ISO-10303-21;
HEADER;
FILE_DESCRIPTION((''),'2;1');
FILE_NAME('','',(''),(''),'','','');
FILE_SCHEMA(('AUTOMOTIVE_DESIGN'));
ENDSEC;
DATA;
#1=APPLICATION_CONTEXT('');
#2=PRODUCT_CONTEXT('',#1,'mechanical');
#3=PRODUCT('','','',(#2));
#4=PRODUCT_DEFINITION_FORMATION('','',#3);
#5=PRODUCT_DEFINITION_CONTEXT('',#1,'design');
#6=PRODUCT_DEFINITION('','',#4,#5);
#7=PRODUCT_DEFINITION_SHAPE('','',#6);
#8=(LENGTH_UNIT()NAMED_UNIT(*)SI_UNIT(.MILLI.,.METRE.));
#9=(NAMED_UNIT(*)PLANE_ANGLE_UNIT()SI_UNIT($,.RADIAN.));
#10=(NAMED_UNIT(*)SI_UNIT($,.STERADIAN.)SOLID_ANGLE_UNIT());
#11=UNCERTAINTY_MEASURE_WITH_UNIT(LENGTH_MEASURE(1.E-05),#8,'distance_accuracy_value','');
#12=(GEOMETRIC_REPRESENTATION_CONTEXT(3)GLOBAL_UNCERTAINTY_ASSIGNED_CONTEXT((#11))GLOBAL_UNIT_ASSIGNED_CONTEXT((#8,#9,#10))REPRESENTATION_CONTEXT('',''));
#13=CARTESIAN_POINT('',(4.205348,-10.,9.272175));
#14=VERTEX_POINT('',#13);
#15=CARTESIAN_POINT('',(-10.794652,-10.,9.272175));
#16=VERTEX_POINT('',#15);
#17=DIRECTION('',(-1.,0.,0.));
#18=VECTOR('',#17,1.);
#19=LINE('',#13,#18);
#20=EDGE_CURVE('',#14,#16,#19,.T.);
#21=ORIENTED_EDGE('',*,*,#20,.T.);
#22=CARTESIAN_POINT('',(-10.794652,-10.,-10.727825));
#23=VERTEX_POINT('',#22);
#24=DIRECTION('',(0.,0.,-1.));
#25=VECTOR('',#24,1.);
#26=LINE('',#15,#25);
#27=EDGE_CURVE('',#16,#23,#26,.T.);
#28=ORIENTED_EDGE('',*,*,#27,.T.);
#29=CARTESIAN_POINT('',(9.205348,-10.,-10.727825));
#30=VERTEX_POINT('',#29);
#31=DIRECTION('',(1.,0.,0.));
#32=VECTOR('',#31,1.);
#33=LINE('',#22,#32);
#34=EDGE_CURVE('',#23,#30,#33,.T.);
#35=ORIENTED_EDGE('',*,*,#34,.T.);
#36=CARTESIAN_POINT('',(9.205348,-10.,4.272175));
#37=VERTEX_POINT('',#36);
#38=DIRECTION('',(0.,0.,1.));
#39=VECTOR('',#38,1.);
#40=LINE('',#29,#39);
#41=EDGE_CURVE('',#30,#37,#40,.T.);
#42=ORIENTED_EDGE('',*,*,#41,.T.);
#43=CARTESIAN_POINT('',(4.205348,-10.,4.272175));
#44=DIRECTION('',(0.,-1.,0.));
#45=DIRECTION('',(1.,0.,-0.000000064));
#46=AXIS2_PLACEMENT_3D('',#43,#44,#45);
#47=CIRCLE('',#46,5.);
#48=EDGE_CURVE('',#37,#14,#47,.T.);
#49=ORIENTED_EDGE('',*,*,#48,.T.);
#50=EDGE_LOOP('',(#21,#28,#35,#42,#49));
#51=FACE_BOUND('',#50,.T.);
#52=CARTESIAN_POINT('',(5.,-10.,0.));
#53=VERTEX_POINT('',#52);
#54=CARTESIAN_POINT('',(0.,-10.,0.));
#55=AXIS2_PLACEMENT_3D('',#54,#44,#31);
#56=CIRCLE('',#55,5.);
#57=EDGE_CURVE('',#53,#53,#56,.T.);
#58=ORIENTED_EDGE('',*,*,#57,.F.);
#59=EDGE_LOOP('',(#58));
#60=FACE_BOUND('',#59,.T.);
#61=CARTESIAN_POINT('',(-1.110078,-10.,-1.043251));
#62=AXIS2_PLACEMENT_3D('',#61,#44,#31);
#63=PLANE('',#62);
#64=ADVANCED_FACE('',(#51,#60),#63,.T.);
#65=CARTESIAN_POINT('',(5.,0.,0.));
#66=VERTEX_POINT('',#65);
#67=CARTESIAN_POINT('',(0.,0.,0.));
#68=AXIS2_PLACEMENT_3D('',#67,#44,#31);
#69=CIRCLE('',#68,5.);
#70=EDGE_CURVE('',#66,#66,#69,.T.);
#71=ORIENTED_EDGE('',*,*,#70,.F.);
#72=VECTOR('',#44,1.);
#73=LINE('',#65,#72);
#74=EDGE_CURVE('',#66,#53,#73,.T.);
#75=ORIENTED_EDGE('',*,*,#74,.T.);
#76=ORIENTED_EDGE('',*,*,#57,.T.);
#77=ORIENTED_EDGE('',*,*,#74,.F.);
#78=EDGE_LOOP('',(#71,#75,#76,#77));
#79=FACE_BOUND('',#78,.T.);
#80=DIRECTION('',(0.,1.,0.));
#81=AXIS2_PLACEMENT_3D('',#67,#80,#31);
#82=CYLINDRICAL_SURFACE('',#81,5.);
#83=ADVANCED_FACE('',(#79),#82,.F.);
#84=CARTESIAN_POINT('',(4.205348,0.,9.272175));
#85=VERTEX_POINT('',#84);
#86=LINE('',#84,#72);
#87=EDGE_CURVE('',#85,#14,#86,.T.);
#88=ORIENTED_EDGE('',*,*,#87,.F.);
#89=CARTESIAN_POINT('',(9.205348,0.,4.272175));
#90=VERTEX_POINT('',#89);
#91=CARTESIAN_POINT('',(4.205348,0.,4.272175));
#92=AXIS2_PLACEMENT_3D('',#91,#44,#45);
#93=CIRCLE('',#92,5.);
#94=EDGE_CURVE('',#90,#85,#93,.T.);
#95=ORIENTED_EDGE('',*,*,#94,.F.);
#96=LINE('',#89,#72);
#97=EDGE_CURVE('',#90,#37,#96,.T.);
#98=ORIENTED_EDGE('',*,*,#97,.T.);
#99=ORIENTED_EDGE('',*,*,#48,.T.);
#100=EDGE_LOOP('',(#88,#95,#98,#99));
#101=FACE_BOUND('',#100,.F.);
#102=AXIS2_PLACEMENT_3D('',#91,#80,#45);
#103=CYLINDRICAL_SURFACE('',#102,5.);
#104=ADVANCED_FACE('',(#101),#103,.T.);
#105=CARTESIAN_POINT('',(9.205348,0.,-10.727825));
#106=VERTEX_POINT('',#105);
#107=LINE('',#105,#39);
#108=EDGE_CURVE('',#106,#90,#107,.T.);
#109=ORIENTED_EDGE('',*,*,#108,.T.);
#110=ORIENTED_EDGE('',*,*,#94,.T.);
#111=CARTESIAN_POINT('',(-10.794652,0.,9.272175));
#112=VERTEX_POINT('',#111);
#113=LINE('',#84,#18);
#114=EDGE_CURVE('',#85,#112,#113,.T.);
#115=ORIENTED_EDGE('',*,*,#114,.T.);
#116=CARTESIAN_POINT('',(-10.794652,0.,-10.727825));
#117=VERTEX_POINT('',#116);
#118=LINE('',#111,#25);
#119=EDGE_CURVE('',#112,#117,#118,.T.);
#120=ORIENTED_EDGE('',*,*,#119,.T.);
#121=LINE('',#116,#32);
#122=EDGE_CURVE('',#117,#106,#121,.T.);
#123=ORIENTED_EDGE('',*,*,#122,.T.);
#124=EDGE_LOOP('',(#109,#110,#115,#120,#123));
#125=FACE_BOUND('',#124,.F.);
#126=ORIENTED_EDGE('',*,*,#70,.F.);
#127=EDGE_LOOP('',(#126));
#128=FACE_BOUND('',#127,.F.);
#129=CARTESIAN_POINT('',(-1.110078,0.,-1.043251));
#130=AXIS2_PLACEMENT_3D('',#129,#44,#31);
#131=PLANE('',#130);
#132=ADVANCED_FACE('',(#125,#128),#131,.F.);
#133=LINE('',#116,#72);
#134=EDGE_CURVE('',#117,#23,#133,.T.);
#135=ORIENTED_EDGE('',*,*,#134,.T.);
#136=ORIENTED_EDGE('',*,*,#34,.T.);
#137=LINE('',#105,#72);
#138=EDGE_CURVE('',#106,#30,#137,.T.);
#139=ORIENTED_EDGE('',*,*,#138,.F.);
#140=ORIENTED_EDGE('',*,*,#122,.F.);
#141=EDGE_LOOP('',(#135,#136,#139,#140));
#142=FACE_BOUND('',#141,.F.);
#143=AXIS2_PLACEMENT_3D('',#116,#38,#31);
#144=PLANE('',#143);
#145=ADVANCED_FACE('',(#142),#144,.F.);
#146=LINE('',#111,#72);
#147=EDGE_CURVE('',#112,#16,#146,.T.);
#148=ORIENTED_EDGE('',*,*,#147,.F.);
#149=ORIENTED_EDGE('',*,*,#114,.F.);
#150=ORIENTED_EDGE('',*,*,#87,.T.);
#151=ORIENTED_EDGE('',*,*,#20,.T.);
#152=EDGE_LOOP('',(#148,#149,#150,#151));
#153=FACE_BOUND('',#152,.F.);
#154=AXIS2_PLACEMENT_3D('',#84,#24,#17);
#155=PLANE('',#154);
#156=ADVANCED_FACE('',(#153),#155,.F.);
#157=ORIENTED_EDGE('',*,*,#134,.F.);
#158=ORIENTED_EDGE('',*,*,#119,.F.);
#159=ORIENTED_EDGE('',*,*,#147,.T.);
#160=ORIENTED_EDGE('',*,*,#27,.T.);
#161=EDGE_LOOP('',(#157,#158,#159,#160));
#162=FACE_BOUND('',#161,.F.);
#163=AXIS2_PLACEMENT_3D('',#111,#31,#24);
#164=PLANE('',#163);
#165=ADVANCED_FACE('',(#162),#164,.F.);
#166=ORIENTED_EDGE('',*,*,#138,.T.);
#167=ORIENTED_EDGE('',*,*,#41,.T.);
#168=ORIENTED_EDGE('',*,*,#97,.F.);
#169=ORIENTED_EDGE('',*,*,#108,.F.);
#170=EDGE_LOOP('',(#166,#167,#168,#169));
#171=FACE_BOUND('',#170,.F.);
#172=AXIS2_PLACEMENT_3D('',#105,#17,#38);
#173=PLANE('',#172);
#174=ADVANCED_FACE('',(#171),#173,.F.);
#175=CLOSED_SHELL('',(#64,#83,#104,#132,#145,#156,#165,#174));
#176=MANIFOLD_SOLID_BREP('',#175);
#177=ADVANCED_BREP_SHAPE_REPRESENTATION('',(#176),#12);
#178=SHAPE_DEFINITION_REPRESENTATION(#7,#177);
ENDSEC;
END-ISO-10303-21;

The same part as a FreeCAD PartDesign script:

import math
import FreeCAD as App
import Part
import Sketcher

doc = App.newDocument("Part")
body = doc.addObject("PartDesign::Body", "Body")

# Sketch on XZ plane
sketch1 = body.newObject("Sketcher::SketchObject", "Sketch")
sketch1.AttachmentSupport = (doc.getObject("XZ_Plane"), [""])
sketch1.MapMode = "FlatFace"
sketch1.addGeometry(Part.LineSegment(App.Vector(-10.8, 9.3, 0), App.Vector(-10.8, -10.7, 0)), False)
sketch1.addGeometry(Part.LineSegment(App.Vector(-10.8, -10.7, 0), App.Vector(9.2, -10.7, 0)), False)
sketch1.addGeometry(Part.LineSegment(App.Vector(9.2, -10.7, 0), App.Vector(9.2, 4.3, 0)), False)
sketch1.addGeometry(Part.ArcOfCircle(Part.Circle(App.Vector(4.2, 4.3, 0), App.Vector(0, 0, 1), 5), math.radians(0), math.radians(90)), False)
sketch1.addGeometry(Part.LineSegment(App.Vector(4.2, 9.3, 0), App.Vector(-10.8, 9.3, 0)), False)
sketch1.addGeometry(Part.Circle(App.Vector(0, 0, 0), App.Vector(0, 0, 1), 5), False)
sketch1.addConstraint(Sketcher.Constraint("Coincident", 0, 2, 1, 1))
sketch1.addConstraint(Sketcher.Constraint("Coincident", 1, 2, 2, 1))
sketch1.addConstraint(Sketcher.Constraint("Tangent", 2, 2, 3, 1))
sketch1.addConstraint(Sketcher.Constraint("Tangent", 3, 2, 4, 1))
sketch1.addConstraint(Sketcher.Constraint("Coincident", 4, 2, 0, 1))
sketch1.addConstraint(Sketcher.Constraint("Vertical", 0))
sketch1.addConstraint(Sketcher.Constraint("Horizontal", 1))
sketch1.addConstraint(Sketcher.Constraint("Vertical", 2))
sketch1.addConstraint(Sketcher.Constraint("Horizontal", 4))
sketch1.addConstraint(Sketcher.Constraint("Coincident", 5, 3, -1, 1))
sketch1.addConstraint(Sketcher.Constraint("Equal", 3, 5))
sketch1.addConstraint(Sketcher.Constraint("Equal", 1, 0))
sketch1.addConstraint(Sketcher.Constraint("Diameter", 5, 10.0))
sketch1.addConstraint(Sketcher.Constraint("DistanceX", 1, 1, 1, 2, 20.0))
sketch1.addConstraint(Sketcher.Constraint("DistanceX", -1, 1, 3, 3, 4.205348))
sketch1.addConstraint(Sketcher.Constraint("DistanceY", -1, 1, 3, 3, 4.272175))
pad1 = body.newObject("PartDesign::Pad", "Pad")
pad1.Profile = sketch1
pad1.Length = 10

doc.recompute()
